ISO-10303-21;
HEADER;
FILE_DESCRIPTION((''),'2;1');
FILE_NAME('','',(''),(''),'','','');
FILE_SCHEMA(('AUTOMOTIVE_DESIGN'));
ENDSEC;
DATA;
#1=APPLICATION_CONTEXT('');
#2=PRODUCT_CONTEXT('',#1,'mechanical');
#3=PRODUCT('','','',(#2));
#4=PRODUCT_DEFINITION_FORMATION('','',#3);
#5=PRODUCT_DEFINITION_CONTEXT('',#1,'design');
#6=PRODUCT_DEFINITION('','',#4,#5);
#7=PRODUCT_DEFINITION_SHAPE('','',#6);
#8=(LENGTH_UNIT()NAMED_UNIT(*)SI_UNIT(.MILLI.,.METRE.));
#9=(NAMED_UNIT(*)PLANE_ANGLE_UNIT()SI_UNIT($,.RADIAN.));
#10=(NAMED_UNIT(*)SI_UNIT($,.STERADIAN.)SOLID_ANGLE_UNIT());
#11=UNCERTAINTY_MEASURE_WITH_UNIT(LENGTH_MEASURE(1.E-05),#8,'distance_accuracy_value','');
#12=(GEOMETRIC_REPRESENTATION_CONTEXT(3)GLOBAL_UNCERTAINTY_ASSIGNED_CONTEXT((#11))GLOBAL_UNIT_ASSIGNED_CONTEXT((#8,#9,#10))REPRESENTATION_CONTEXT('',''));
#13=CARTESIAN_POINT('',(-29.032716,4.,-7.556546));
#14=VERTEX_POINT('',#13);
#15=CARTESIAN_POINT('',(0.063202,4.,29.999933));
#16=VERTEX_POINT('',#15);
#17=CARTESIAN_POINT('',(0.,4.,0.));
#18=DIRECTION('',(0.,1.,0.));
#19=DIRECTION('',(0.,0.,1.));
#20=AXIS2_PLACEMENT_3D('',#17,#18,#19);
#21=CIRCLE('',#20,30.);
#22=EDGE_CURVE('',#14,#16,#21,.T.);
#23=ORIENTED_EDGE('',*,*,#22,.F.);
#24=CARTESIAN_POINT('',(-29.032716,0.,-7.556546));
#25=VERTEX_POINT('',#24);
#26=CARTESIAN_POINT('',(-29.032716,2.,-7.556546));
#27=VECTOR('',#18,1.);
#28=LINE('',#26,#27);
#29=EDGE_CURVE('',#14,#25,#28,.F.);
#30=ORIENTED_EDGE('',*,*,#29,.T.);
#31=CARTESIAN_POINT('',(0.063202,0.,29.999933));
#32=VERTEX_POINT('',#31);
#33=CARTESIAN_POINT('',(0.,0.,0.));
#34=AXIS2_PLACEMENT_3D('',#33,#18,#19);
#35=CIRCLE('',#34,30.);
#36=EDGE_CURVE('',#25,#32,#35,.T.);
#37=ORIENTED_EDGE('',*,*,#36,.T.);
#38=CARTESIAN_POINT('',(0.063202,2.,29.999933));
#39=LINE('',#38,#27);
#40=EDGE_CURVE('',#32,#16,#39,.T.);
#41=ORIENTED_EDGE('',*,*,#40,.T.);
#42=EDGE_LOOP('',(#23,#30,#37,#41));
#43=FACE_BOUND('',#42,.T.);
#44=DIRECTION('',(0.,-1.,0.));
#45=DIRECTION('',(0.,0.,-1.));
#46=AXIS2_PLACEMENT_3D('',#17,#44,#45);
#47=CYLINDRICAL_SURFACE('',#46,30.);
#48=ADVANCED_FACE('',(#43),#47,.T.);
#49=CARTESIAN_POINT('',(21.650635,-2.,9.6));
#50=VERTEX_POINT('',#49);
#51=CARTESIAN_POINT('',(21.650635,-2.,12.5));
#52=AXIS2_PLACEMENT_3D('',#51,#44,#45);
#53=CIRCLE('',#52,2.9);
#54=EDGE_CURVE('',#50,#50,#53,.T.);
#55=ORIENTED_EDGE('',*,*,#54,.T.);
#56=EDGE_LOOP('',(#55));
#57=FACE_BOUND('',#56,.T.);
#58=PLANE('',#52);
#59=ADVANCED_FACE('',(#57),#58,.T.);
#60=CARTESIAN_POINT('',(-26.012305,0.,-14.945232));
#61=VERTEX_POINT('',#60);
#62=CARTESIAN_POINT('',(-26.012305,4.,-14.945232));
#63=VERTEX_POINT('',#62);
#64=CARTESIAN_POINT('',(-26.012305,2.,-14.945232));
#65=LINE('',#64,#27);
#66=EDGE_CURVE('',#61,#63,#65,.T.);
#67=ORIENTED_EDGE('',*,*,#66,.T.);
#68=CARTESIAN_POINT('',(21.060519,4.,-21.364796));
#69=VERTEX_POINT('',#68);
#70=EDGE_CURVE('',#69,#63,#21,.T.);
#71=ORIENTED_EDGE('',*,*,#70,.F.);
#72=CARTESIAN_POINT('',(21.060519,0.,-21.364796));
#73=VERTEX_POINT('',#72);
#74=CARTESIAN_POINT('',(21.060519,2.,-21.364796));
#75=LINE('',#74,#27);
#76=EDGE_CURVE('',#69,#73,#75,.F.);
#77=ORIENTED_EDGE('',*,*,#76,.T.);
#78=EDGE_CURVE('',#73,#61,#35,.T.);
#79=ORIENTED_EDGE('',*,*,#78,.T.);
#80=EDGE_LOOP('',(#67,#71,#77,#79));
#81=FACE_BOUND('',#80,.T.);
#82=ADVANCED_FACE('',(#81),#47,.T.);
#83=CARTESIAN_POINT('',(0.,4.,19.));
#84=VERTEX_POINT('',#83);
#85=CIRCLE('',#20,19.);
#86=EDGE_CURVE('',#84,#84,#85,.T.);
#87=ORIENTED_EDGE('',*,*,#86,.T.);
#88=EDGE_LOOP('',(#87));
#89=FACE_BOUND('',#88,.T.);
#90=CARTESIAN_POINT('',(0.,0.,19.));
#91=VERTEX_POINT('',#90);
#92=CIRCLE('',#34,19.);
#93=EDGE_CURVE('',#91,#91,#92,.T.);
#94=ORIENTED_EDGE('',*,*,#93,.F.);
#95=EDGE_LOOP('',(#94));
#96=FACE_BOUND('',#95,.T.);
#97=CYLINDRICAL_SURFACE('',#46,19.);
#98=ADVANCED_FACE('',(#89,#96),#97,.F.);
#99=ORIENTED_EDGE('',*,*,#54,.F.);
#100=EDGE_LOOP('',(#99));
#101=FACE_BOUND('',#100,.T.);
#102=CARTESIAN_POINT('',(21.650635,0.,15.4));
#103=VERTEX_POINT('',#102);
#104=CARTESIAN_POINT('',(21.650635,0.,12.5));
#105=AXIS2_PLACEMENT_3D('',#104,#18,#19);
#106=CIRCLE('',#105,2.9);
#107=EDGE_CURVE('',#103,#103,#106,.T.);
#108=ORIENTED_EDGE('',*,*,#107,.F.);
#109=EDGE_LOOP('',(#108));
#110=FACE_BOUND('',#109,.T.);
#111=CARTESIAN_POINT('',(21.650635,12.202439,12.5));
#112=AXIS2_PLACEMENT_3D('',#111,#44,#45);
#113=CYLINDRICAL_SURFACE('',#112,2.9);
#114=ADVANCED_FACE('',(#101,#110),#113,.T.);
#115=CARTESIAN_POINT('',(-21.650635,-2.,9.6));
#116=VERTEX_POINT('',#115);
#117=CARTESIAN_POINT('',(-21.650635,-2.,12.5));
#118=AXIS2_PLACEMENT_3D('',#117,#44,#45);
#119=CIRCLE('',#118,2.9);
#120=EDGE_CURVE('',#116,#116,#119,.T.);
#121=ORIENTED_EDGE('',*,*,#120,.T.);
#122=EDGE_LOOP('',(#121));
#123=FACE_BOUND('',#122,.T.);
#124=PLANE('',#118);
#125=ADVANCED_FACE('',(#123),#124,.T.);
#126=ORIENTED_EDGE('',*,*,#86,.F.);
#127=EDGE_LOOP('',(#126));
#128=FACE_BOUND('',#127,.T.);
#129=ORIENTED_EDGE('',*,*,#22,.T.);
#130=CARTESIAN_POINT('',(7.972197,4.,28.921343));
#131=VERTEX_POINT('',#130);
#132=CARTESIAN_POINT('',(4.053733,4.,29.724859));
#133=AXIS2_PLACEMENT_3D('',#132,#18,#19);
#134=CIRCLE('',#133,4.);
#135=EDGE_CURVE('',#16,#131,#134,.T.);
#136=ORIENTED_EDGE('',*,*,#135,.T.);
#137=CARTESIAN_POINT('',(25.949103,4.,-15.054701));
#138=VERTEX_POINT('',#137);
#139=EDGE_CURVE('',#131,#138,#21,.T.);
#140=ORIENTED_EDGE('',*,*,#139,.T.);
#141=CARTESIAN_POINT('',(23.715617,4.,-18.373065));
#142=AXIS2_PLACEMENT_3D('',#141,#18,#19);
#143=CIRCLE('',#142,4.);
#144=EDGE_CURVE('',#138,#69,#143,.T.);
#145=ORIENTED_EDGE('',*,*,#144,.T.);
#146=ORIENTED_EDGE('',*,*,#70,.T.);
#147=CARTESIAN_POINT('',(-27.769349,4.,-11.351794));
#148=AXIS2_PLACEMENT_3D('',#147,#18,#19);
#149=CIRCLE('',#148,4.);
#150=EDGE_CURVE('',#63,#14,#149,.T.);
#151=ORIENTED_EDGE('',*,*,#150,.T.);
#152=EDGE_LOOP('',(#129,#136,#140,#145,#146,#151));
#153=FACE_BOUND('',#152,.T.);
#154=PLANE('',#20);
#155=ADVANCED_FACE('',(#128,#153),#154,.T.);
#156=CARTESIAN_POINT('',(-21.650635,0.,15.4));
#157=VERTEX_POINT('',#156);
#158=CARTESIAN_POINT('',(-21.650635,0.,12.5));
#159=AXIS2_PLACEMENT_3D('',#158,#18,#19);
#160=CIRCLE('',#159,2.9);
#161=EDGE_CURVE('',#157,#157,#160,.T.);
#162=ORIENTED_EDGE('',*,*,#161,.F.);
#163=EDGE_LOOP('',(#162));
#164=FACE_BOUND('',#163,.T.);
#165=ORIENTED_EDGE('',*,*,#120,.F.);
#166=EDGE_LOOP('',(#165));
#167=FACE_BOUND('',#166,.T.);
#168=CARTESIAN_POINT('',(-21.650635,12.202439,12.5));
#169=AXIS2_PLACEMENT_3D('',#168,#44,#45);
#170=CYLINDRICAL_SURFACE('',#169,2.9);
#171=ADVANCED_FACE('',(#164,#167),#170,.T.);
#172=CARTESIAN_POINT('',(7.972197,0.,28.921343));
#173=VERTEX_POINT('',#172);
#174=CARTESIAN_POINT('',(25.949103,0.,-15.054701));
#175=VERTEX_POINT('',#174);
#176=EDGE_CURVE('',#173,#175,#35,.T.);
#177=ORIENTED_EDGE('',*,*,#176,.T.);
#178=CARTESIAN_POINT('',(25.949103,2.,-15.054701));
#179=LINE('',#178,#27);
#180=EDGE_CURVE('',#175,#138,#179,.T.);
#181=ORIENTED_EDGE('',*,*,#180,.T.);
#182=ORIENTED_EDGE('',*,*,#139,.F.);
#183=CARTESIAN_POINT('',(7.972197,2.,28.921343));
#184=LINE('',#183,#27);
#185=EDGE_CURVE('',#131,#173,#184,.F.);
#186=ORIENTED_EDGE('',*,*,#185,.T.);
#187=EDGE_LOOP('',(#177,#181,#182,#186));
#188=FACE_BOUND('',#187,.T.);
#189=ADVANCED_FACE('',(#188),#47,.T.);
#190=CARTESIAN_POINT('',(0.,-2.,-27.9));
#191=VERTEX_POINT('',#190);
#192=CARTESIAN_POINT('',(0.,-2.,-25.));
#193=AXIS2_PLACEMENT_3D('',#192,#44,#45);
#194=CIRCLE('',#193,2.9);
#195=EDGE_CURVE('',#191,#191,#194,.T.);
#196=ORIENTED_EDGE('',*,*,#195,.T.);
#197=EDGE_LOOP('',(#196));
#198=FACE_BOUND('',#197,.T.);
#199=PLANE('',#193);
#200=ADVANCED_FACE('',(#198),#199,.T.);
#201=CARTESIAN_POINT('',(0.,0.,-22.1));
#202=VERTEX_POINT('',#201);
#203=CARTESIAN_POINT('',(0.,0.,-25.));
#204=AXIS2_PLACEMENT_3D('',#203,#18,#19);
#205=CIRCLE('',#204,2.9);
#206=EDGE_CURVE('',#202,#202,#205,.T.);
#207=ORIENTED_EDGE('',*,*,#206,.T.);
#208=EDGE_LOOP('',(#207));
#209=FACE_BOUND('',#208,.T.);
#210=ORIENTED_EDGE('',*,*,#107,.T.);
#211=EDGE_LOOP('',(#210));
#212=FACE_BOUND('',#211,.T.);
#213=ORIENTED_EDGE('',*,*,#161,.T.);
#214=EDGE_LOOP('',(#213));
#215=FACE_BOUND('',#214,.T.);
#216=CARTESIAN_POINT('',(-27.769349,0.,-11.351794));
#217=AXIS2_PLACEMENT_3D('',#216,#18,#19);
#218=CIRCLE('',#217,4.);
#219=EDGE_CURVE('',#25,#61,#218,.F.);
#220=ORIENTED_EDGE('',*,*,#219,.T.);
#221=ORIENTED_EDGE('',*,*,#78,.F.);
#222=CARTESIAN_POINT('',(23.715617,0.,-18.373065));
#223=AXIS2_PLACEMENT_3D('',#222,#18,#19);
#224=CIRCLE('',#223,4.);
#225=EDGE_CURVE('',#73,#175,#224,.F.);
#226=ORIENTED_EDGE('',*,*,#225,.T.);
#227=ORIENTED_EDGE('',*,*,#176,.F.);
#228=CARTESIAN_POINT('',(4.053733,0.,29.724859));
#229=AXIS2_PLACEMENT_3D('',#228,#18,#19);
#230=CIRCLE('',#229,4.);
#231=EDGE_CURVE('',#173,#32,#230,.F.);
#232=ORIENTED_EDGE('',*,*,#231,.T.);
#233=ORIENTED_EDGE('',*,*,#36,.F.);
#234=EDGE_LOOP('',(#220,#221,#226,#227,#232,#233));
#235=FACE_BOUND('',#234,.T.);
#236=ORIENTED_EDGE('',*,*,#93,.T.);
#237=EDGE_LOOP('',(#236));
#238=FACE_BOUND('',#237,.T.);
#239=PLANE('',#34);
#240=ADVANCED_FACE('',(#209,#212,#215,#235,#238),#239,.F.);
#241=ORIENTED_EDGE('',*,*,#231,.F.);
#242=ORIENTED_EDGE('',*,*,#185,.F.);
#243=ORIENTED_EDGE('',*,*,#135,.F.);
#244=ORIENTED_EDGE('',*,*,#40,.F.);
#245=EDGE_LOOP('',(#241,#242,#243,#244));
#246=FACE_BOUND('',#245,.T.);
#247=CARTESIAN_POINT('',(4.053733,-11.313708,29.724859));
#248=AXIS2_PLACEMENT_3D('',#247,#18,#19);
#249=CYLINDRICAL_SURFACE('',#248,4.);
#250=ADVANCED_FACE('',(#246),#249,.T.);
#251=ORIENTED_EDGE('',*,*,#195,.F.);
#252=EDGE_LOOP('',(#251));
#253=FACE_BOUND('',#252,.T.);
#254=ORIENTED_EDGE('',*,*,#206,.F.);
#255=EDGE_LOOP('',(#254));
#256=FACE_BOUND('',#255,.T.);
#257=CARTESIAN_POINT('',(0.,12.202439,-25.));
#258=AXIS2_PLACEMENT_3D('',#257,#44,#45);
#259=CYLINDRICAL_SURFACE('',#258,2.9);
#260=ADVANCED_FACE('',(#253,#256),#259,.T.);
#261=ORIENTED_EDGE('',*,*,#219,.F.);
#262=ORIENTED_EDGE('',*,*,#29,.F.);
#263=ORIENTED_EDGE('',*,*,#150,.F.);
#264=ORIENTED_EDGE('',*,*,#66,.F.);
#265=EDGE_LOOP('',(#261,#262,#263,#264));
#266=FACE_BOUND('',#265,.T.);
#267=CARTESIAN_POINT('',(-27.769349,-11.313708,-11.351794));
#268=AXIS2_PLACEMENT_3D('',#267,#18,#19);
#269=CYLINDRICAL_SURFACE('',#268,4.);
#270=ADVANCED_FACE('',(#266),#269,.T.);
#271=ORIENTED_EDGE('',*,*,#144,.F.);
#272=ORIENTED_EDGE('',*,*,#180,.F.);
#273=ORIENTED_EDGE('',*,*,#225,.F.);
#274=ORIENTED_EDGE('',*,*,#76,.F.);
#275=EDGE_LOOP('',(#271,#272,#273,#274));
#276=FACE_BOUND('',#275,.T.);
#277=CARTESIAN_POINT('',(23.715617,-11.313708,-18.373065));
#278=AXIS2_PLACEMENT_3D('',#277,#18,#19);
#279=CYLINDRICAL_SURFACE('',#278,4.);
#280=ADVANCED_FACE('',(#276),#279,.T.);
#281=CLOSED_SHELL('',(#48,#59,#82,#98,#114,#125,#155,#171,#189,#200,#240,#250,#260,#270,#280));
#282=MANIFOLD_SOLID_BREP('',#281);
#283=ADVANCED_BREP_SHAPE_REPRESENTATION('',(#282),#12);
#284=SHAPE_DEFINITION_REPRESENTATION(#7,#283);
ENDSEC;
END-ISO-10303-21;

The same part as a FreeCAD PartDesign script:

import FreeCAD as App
import Part
import Sketcher
from FreeCAD import Vector

doc = App.newDocument("Part")
body = doc.addObject("PartDesign::Body", "Body")

# Sketch on XZ plane
sketch1 = doc.addObject("Sketcher::SketchObject", "Sketch")
body.addObject(sketch1)
sketch1.AttachmentSupport = (doc.XZ_Plane, [""])
sketch1.MapMode = "FlatFace"
sketch1.addGeometry(Part.Circle(Vector(0, 0, 0), Vector(0, 0, 1), 19), False)
sketch1.addConstraint(Sketcher.Constraint("Coincident", 0, 3, -1, 1))
sketch1.addConstraint(Sketcher.Constraint("Diameter", 0, 38.0))
pad1 = doc.addObject("PartDesign::Pad", "Pad")
body.addObject(pad1)
pad1.Profile = sketch1
pad1.Length = 3.5
pad1.Reversed = True

# Sketch on XZ plane
sketch2 = doc.addObject("Sketcher::SketchObject", "Sketch001")
body.addObject(sketch2)
sketch2.AttachmentSupport = (doc.XZ_Plane, [""])
sketch2.MapMode = "FlatFace"
sketch2.addGeometry(Part.Circle(Vector(0, 0, 0), Vector(0, 0, 1), 30), False)
sketch2.addGeometry(Part.Circle(Vector(0, -25, 0), Vector(0, 0, 1), 2.8), False)
sketch2.addGeometry(Part.Circle(Vector(-21.650635, 12.5, 0), Vector(0, 0, 1), 2.8), False)
sketch2.addGeometry(Part.Circle(Vector(0, 0, 0), Vector(0, 0, 1), 19), False)
sketch2.addGeometry(Part.Circle(Vector(21.650635, 12.5, 0), Vector(0, 0, 1), 2.8), False)
sketch2.addConstraint(Sketcher.Constraint("Coincident", 0, 3, -1, 1))
sketch2.addConstraint(Sketcher.Constraint("Coincident", 3, 3, -1, 1))
sketch2.addConstraint(Sketcher.Constraint("Equal", 1, 2))
sketch2.addConstraint(Sketcher.Constraint("Equal", 2, 4))
sketch2.addConstraint(Sketcher.Constraint("Symmetric", 2, 3, 4, 3, -2))
sketch2.addConstraint(Sketcher.Constraint("PointOnObject", 1, 3, -2))
sketch2.addConstraint(Sketcher.Constraint("Diameter", 0, 60.0))
sketch2.addConstraint(Sketcher.Constraint("Diameter", 3, 38.0))
sketch2.addConstraint(Sketcher.Constraint("Diameter", 1, 5.6))
sketch2.addConstraint(Sketcher.Constraint("DistanceY", 1, 3, -1, 1, 25.0))
sketch2.addConstraint(Sketcher.Constraint("DistanceY", -1, 1, 2, 3, 12.5))
sketch2.addConstraint(Sketcher.Constraint("DistanceX", 2, 3, 4, 3, 43.30127))
pad2 = doc.addObject("PartDesign::Pad", "Pad001")
body.addObject(pad2)
pad2.Profile = sketch2
pad2.Length = 4
pad2.Reversed = True

# Sketch on XZ plane
sketch3 = doc.addObject("Sketcher::SketchObject", "Sketch002")
body.addObject(sketch3)
sketch3.AttachmentSupport = (doc.XZ_Plane, [""])
sketch3.MapMode = "FlatFace"
sketch3.AttachmentOffset = App.Placement(Vector(0, 0, 6.5), App.Rotation())
sketch3.addGeometry(Part.Circle(Vector(0, 0, 0), Vector(0, 0, 1), 19), False)
sketch3.addConstraint(Sketcher.Constraint("Coincident", 0, 3, -1, 1))
sketch3.addConstraint(Sketcher.Constraint("Diameter", 0, 38.0))
pocket1 = doc.addObject("PartDesign::Pocket", "Pocket")
body.addObject(pocket1)
pocket1.Profile = sketch3
pocket1.Length = 10

# Sketch on XZ plane
sketch4 = doc.addObject("Sketcher::SketchObject", "Sketch003")
body.addObject(sketch4)
sketch4.AttachmentSupport = (doc.XZ_Plane, [""])
sketch4.MapMode = "FlatFace"
sketch4.addGeometry(Part.Circle(Vector(-21.650635, 12.5, 0), Vector(0, 0, 1), 2.9), False)
sketch4.addGeometry(Part.Circle(Vector(21.650635, 12.5, 0), Vector(0, 0, 1), 2.9), False)
sketch4.addGeometry(Part.Circle(Vector(0, -25, 0), Vector(0, 0, 1), 2.9), False)
sketch4.addConstraint(Sketcher.Constraint("Equal", 0, 1))
sketch4.addConstraint(Sketcher.Constraint("Equal", 1, 2))
sketch4.addConstraint(Sketcher.Constraint("Symmetric", 0, 3, 1, 3, -2))
sketch4.addConstraint(Sketcher.Constraint("PointOnObject", 2, 3, -2))
sketch4.addConstraint(Sketcher.Constraint("Diameter", 0, 5.8))
sketch4.addConstraint(Sketcher.Constraint("DistanceY", 2, 3, -1, 1, 25.0))
sketch4.addConstraint(Sketcher.Constraint("DistanceY", -1, 1, 0, 3, 12.5))
sketch4.addConstraint(Sketcher.Constraint("DistanceX", 0, 3, 1, 3, 43.30127))
pad3 = doc.addObject("PartDesign::Pad", "Pad002")
body.addObject(pad3)
pad3.Profile = sketch4
pad3.Type = "TwoLengths"
pad3.Length = 2
pad3.Length2 = 4

# Sketch on XZ plane
sketch5 = doc.addObject("Sketcher::SketchObject", "Sketch004")
body.addObject(sketch5)
sketch5.AttachmentSupport = (doc.XZ_Plane, [""])
sketch5.MapMode = "FlatFace"
sketch5.AttachmentOffset = App.Placement(Vector(0, 0, -4), App.Rotation())
sketch5.addGeometry(Part.Circle(Vector(-27.769349, -11.351794, 0), Vector(0, 0, 1), 4), False)
sketch5.addGeometry(Part.Circle(Vector(23.715617, -18.373065, 0), Vector(0, 0, 1), 4), False)
sketch5.addGeometry(Part.Circle(Vector(4.053733, 29.724859, 0), Vector(0, 0, 1), 4), False)
sketch5.addConstraint(Sketcher.Constraint("Equal", 0, 1))
sketch5.addConstraint(Sketcher.Constraint("Equal", 1, 2))
sketch5.addConstraint(Sketcher.Constraint("Diameter", 0, 8.0))
sketch5.addConstraint(Sketcher.Constraint("DistanceX", 0, 3, -1, 1, 27.769349))
sketch5.addConstraint(Sketcher.Constraint("DistanceY", -1, 1, 2, 3, 29.724859))
sketch5.addConstraint(Sketcher.Constraint("DistanceY", 1, 3, 0, 3, 7.021271))
sketch5.addConstraint(Sketcher.Constraint("DistanceY", 0, 3, -1, 1, 11.351794))
sketch5.addConstraint(Sketcher.Constraint("DistanceX", -1, 1, 1, 3, 23.715617))
sketch5.addConstraint(Sketcher.Constraint("DistanceX", -1, 1, 2, 3, 4.053733))
pad4 = doc.addObject("PartDesign::Pad", "Pad003")
body.addObject(pad4)
pad4.Profile = sketch5
pad4.Length = 4

doc.recompute()
